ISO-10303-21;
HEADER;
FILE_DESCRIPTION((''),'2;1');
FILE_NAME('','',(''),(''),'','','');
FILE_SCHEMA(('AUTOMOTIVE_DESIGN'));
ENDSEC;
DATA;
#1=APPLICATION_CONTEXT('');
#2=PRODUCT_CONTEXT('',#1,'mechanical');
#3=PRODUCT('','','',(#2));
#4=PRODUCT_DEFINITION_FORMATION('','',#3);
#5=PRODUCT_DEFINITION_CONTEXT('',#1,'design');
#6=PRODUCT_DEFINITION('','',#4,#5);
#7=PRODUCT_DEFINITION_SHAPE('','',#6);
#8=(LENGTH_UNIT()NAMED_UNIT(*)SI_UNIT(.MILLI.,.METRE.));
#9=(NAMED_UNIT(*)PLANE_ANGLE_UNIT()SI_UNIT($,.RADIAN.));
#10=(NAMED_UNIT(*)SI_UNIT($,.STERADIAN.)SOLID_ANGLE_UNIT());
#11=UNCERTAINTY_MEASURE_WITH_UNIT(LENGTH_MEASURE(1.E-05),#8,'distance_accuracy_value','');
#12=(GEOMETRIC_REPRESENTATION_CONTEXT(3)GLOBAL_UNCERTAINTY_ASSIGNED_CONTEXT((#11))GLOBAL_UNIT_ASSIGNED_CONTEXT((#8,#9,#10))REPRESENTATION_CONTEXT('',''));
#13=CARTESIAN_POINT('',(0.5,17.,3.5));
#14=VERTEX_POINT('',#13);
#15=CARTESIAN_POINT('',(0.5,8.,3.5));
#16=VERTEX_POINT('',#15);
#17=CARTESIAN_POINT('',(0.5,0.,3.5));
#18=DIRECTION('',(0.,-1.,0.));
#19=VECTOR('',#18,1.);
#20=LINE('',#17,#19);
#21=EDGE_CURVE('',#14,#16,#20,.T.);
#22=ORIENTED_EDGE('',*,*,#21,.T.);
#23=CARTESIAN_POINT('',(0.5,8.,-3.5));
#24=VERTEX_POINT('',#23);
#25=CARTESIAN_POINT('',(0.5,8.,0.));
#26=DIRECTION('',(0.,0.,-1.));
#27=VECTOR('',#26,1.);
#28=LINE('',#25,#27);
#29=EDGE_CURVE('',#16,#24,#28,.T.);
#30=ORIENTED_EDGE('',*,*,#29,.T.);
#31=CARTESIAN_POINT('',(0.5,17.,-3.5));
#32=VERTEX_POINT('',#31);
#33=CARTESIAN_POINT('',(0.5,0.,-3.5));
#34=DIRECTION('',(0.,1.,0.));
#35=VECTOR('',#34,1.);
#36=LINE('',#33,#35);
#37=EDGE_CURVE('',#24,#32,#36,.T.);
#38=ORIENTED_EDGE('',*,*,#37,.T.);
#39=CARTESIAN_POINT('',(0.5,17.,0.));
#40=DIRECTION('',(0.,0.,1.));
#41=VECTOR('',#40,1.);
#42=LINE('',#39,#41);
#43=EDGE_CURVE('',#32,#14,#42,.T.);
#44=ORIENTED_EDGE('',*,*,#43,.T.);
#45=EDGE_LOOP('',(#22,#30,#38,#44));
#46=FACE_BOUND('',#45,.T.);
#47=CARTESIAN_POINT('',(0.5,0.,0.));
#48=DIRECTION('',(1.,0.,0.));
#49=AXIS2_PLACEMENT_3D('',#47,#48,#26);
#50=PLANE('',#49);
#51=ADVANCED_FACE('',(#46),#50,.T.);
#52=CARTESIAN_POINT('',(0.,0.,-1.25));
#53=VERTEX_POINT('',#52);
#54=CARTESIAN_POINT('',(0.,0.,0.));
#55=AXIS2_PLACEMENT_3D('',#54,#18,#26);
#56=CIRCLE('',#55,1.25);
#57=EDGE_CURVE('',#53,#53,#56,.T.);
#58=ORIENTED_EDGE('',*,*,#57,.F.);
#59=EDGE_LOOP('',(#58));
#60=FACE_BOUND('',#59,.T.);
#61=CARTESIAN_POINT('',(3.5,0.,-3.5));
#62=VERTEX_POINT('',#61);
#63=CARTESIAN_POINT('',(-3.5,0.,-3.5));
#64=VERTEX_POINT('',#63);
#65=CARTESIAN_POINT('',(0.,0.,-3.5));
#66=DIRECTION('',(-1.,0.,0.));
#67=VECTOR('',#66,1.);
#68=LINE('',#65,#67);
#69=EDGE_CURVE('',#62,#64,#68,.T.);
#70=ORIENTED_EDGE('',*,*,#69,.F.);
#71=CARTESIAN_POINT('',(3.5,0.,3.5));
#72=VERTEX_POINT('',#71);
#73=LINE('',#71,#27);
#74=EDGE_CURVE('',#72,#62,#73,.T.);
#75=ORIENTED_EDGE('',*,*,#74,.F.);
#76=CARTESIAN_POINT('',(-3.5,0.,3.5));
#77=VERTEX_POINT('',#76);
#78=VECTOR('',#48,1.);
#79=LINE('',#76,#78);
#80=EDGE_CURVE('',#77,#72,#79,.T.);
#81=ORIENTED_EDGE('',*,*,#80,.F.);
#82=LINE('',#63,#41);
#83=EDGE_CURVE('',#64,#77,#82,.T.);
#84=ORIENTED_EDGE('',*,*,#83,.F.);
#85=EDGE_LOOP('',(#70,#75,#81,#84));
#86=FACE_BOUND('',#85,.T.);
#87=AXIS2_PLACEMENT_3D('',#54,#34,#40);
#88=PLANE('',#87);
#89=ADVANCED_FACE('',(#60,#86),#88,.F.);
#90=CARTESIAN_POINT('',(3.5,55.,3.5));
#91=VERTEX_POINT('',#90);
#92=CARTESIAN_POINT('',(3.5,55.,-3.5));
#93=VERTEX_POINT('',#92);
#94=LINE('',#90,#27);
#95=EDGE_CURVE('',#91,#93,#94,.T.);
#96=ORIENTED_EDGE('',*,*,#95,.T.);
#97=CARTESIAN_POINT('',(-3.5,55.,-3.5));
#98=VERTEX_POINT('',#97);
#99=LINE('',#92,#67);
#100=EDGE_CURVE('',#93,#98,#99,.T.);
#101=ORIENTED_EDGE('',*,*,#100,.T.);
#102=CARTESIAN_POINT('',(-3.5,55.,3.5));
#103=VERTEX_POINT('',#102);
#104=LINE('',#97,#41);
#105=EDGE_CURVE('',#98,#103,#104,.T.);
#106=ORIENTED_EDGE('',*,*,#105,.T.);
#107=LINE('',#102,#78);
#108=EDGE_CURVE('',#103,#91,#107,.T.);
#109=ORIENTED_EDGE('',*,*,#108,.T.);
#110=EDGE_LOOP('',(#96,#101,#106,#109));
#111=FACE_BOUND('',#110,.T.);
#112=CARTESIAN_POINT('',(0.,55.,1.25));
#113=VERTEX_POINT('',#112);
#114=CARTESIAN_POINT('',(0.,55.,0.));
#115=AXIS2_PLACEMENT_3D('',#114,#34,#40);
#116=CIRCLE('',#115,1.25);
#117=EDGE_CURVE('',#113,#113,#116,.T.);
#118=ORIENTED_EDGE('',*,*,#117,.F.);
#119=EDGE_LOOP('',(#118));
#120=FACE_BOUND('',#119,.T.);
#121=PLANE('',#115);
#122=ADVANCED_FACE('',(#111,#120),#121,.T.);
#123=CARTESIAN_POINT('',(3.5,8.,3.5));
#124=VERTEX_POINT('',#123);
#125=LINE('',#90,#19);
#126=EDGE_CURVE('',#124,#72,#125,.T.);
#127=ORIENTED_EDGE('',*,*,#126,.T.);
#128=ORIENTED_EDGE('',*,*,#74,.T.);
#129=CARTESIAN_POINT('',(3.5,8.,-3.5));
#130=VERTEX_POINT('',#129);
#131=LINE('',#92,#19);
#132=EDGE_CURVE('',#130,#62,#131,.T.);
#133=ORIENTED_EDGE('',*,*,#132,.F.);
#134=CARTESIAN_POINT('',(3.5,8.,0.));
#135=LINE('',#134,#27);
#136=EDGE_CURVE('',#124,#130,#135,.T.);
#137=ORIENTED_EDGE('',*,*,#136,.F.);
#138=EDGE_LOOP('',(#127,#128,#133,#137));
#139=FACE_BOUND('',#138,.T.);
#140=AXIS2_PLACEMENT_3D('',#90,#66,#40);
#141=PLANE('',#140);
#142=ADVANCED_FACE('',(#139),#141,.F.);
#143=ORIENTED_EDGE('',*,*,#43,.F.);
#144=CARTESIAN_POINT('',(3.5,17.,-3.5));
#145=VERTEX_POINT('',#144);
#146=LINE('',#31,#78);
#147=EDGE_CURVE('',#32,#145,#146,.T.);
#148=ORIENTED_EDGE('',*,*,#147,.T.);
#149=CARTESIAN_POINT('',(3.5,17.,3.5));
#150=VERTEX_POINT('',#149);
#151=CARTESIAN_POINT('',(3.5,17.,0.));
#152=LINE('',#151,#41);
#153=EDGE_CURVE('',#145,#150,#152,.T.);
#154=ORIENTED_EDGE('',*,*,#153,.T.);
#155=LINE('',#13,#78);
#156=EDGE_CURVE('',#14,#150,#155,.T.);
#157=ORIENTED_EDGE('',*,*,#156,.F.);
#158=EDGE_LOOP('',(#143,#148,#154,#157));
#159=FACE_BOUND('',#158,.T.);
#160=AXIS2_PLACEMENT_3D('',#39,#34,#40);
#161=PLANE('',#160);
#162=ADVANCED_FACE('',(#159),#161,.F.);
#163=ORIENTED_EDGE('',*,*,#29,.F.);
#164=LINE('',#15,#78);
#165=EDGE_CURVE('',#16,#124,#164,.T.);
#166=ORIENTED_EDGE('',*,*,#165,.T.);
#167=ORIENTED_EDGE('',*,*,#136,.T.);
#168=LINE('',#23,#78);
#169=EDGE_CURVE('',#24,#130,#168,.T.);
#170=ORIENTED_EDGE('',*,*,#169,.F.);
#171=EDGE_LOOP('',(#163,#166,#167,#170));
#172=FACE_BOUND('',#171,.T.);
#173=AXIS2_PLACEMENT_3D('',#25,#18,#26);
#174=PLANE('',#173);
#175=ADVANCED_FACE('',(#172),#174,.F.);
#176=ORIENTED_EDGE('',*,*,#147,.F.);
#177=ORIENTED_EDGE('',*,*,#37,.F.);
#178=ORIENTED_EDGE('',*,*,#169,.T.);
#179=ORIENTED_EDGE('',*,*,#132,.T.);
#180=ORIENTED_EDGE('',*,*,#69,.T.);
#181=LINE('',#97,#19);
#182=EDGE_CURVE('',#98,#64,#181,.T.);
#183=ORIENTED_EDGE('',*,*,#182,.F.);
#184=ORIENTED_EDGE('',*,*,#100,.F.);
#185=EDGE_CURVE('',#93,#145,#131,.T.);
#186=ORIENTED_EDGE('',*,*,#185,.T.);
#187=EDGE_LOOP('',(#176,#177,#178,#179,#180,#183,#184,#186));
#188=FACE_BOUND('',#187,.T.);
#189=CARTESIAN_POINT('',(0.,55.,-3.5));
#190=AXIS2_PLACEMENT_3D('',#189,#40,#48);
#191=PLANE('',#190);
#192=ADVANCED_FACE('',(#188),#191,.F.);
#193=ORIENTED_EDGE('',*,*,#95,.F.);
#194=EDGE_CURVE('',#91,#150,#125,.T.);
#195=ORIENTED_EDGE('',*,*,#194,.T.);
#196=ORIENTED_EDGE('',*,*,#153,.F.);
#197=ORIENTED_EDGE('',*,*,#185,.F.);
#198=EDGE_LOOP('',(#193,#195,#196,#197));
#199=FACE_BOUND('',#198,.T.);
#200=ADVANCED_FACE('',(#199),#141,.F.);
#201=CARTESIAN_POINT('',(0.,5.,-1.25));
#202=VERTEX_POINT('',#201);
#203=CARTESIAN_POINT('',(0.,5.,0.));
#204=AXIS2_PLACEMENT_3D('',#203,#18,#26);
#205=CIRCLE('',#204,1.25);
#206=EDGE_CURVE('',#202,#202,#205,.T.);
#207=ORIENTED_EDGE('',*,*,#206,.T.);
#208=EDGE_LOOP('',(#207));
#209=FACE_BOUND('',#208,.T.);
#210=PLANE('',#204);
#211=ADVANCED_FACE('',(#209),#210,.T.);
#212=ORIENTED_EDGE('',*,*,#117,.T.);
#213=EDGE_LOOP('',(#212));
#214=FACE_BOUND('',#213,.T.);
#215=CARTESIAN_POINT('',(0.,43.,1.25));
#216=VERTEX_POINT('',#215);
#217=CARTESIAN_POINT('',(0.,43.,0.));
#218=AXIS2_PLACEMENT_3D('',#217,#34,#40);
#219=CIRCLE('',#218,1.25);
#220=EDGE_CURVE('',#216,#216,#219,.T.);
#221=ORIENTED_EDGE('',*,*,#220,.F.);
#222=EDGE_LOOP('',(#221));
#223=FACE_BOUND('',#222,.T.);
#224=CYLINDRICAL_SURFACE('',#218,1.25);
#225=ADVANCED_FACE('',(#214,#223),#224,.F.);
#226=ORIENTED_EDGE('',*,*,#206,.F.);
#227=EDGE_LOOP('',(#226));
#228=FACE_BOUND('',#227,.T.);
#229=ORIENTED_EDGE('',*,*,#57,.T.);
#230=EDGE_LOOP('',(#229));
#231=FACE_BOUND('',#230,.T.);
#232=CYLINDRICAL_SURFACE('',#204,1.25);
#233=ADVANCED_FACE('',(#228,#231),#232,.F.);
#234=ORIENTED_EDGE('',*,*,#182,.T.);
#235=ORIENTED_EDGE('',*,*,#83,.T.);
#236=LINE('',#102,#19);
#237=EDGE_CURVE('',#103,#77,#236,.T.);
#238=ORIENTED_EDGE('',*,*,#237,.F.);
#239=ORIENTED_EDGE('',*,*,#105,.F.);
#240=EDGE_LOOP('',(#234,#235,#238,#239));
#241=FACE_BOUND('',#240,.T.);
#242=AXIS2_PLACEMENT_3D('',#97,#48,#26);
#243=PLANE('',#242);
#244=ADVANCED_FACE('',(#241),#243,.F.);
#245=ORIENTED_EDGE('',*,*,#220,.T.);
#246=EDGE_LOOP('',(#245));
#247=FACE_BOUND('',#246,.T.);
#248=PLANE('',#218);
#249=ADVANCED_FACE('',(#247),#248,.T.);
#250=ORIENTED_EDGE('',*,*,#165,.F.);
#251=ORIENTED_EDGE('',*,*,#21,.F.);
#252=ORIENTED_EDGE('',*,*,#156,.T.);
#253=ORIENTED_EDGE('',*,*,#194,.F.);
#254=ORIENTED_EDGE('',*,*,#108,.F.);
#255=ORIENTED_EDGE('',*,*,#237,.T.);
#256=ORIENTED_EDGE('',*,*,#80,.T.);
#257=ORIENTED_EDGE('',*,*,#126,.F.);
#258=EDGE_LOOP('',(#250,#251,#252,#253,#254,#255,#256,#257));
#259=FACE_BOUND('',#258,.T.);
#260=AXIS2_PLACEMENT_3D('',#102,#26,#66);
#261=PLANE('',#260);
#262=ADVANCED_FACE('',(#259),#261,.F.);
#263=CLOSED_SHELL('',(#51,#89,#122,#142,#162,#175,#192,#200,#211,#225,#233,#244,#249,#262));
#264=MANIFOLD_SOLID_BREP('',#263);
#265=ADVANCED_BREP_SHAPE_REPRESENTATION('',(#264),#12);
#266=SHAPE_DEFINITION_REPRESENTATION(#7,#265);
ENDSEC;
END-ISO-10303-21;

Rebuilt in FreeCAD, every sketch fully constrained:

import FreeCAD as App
import Part
import Sketcher
Q = App.Units.Quantity

doc = App.newDocument("Part")
body = doc.addObject("PartDesign::Body", "Body")

sketch1 = doc.addObject("Sketcher::SketchObject", "Sketch")
body.addObject(sketch1)
sketch1.AttachmentSupport = (doc.XZ_Plane, [""])
sketch1.MapMode = "FlatFace"
sketch1.addGeometry([
    Part.LineSegment(App.Vector(-3.5, -3.5, 0), App.Vector(-3.5, 3.5, 0)),
    Part.LineSegment(App.Vector(-3.5, 3.5, 0), App.Vector(3.5, 3.5, 0)),
    Part.LineSegment(App.Vector(3.5, 3.5, 0), App.Vector(3.5, -3.5, 0)),
    Part.LineSegment(App.Vector(3.5, -3.5, 0), App.Vector(-3.5, -3.5, 0)),
], False)
sketch1.addConstraint([
    Sketcher.Constraint("Coincident", 0, 2, 1, 1),
    Sketcher.Constraint("Coincident", 1, 2, 2, 1),
    Sketcher.Constraint("Coincident", 2, 2, 3, 1),
    Sketcher.Constraint("Coincident", 3, 2, 0, 1),
    Sketcher.Constraint("Vertical", 0),
    Sketcher.Constraint("Horizontal", 1),
    Sketcher.Constraint("Vertical", 2),
    Sketcher.Constraint("Horizontal", 3),
    Sketcher.Constraint("Symmetric", 0, 2, 2, 2, -1, 1),
    Sketcher.Constraint("Equal", 3, 0),
    Sketcher.Constraint("DistanceX", 1, 1, 1, 2, Q("7 mm")),
])
pad1 = doc.addObject("PartDesign::Pad", "Pad")
body.addObject(pad1)
pad1.Profile = sketch1
pad1.Length = 55
pad1.Reversed = True

sketch2 = doc.addObject("Sketcher::SketchObject", "Sketch001")
body.addObject(sketch2)
sketch2.AttachmentSupport = (doc.XZ_Plane, [""])
sketch2.MapMode = "FlatFace"
sketch2.AttachmentOffset = App.Placement(App.Vector(0, 0, -55), App.Rotation())
sketch2.addGeometry(Part.Circle(App.Vector(0, 0, 0), App.Vector(0, 0, 1), 1.25), False)
sketch2.addConstraint([
    Sketcher.Constraint("Coincident", 0, 3, -1, 1),
    Sketcher.Constraint("Diameter", 0, Q("2.5 mm")),
])
pocket1 = doc.addObject("PartDesign::Pocket", "Pocket")
body.addObject(pocket1)
pocket1.Profile = sketch2
pocket1.Length = 12
pocket1.Reversed = True

sketch3 = doc.addObject("Sketcher::SketchObject", "Sketch002")
body.addObject(sketch3)
sketch3.AttachmentSupport = (doc.YZ_Plane, [""])
sketch3.MapMode = "FlatFace"
sketch3.AttachmentOffset = App.Placement(App.Vector(0, 0, 3.5), App.Rotation())
sketch3.addGeometry([
    Part.LineSegment(App.Vector(17, 3.5, 0), App.Vector(8, 3.5, 0)),
    Part.LineSegment(App.Vector(8, 3.5, 0), App.Vector(8, -3.5, 0)),
    Part.LineSegment(App.Vector(8, -3.5, 0), App.Vector(17, -3.5, 0)),
    Part.LineSegment(App.Vector(17, -3.5, 0), App.Vector(17, 3.5, 0)),
], False)
sketch3.addConstraint([
    Sketcher.Constraint("Coincident", 0, 2, 1, 1),
    Sketcher.Constraint("Coincident", 1, 2, 2, 1),
    Sketcher.Constraint("Coincident", 2, 2, 3, 1),
    Sketcher.Constraint("Coincident", 3, 2, 0, 1),
    Sketcher.Constraint("Horizontal", 0),
    Sketcher.Constraint("Vertical", 1),
    Sketcher.Constraint("Horizontal", 2),
    Sketcher.Constraint("Vertical", 3),
    Sketcher.Constraint("DistanceX", 0, 2, 0, 1, Q("9 mm")),
    Sketcher.Constraint("DistanceY", 1, 2, 1, 1, Q("7 mm")),
    Sketcher.Constraint("DistanceX", -1, 1, 0, 2, Q("8 mm")),
    Sketcher.Constraint("DistanceY", -1, 1, 0, 2, Q("3.5 mm")),
])
pocket2 = doc.addObject("PartDesign::Pocket", "Pocket001")
body.addObject(pocket2)
pocket2.Profile = sketch3
pocket2.Length = 3

sketch4 = doc.addObject("Sketcher::SketchObject", "Sketch003")
body.addObject(sketch4)
sketch4.AttachmentSupport = (doc.XZ_Plane, [""])
sketch4.MapMode = "FlatFace"
sketch4.AttachmentOffset = App.Placement(App.Vector(0, 0, -5), App.Rotation())
sketch4.addGeometry(Part.Circle(App.Vector(0, 0, 0), App.Vector(0, 0, 1), 1.25), False)
sketch4.addConstraint([
    Sketcher.Constraint("Coincident", 0, 3, -1, 1),
    Sketcher.Constraint("Diameter", 0, Q("2.5 mm")),
])
pocket3 = doc.addObject("PartDesign::Pocket", "Pocket002")
body.addObject(pocket3)
pocket3.Profile = sketch4
pocket3.Length = 5
pocket3.Reversed = True

doc.recompute()
